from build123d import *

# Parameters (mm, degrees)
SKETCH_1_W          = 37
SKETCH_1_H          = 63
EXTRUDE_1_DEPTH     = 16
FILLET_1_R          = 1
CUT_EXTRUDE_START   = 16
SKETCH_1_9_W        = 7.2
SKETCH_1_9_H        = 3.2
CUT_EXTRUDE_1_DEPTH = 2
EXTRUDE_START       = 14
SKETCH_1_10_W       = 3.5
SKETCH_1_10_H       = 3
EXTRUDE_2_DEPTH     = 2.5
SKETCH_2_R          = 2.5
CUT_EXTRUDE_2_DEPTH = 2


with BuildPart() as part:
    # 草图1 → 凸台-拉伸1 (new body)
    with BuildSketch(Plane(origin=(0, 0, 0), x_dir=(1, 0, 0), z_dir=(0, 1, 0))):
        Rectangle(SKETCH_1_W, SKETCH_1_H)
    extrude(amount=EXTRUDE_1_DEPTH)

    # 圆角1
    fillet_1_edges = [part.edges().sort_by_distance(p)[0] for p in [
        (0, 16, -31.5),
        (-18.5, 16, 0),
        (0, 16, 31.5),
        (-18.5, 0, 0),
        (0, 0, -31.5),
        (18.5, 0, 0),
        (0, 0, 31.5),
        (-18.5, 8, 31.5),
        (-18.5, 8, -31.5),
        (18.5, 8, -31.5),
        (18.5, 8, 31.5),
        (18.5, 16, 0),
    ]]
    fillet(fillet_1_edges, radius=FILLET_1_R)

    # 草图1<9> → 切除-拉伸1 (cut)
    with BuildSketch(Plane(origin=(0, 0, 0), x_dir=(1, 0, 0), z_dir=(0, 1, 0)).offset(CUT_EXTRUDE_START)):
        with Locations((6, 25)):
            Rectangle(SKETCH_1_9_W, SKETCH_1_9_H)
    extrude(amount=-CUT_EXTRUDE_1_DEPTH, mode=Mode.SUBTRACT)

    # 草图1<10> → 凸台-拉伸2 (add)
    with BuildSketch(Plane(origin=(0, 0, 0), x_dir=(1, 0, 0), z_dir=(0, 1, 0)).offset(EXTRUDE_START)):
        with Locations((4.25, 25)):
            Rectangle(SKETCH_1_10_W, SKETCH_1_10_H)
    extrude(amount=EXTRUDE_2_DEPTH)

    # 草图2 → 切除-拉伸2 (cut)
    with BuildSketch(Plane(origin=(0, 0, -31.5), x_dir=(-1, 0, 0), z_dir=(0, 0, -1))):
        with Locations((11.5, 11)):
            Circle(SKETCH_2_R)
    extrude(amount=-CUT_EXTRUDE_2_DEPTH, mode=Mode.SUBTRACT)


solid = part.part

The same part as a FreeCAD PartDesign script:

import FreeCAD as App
import Part
import Sketcher
from FreeCAD import Vector
Q = App.Units.Quantity

doc = App.newDocument("Part")
body = doc.addObject("PartDesign::Body", "Body")

# Sketch on XZ plane
sketch1 = body.newObject("Sketcher::SketchObject", "Sketch")
sketch1.AttachmentSupport = (doc.getObject("XZ_Plane"), [""])
sketch1.MapMode = "FlatFace"
sketch1.addGeometry([
    Part.LineSegment(Vector(-18.5, -31.5, 0), Vector(-18.5, 31.5, 0)),
    Part.LineSegment(Vector(-18.5, 31.5, 0), Vector(18.5, 31.5, 0)),
    Part.LineSegment(Vector(18.5, 31.5, 0), Vector(18.5, -31.5, 0)),
    Part.LineSegment(Vector(18.5, -31.5, 0), Vector(-18.5, -31.5, 0)),
], False)
sketch1.addConstraint([
    Sketcher.Constraint("Coincident", 0, 2, 1, 1),
    Sketcher.Constraint("Coincident", 1, 2, 2, 1),
    Sketcher.Constraint("Coincident", 2, 2, 3, 1),
    Sketcher.Constraint("Coincident", 3, 2, 0, 1),
    Sketcher.Constraint("Vertical", 0),
    Sketcher.Constraint("Horizontal", 1),
    Sketcher.Constraint("Vertical", 2),
    Sketcher.Constraint("Horizontal", 3),
    Sketcher.Constraint("Symmetric", 0, 2, 2, 2, -1, 1),
    Sketcher.Constraint("DistanceX", 1, 1, 1, 2, Q("37 mm")),
    Sketcher.Constraint("DistanceY", 0, 1, 0, 2, Q("63 mm")),
])
pad1 = body.newObject("PartDesign::Pad", "Pad")
pad1.Profile = sketch1
pad1.Length = 16
pad1.Reversed = True
doc.recompute()

fillet = body.newObject("PartDesign::Fillet", "Fillet")
fillet.Base = (pad1, ["Edge1"])
fillet.UseAllEdges = True
fillet.Radius = 1

# Sketch on XZ plane
sketch2 = body.newObject("Sketcher::SketchObject", "Sketch001")
sketch2.AttachmentSupport = (doc.getObject("XZ_Plane"), [""])
sketch2.MapMode = "FlatFace"
sketch2.AttachmentOffset = App.Placement(Vector(0, 0, -16), App.Rotation())
sketch2.addGeometry([
    Part.LineSegment(Vector(2.4, -26.6, 0), Vector(2.4, -23.4, 0)),
    Part.LineSegment(Vector(2.4, -23.4, 0), Vector(9.6, -23.4, 0)),
    Part.LineSegment(Vector(9.6, -23.4, 0), Vector(9.6, -26.6, 0)),
    Part.LineSegment(Vector(9.6, -26.6, 0), Vector(2.4, -26.6, 0)),
], False)
sketch2.addConstraint([
    Sketcher.Constraint("Coincident", 0, 2, 1, 1),
    Sketcher.Constraint("Coincident", 1, 2, 2, 1),
    Sketcher.Constraint("Coincident", 2, 2, 3, 1),
    Sketcher.Constraint("Coincident", 3, 2, 0, 1),
    Sketcher.Constraint("Vertical", 0),
    Sketcher.Constraint("Horizontal", 1),
    Sketcher.Constraint("Vertical", 2),
    Sketcher.Constraint("Horizontal", 3),
    Sketcher.Constraint("DistanceX", 1, 1, 1, 2, Q("7.2 mm")),
    Sketcher.Constraint("DistanceY", 0, 1, 0, 2, Q("3.2 mm")),
    Sketcher.Constraint("DistanceX", -1, 1, 0, 2, Q("2.4 mm")),
    Sketcher.Constraint("DistanceY", 0, 2, -1, 1, Q("23.4 mm")),
])
pocket1 = body.newObject("PartDesign::Pocket", "Pocket")
pocket1.Profile = sketch2
pocket1.Length = 2
pocket1.Reversed = True

# Sketch on XZ plane
sketch3 = body.newObject("Sketcher::SketchObject", "Sketch002")
sketch3.AttachmentSupport = (doc.getObject("XZ_Plane"), [""])
sketch3.MapMode = "FlatFace"
sketch3.AttachmentOffset = App.Placement(Vector(0, 0, -14), App.Rotation())
sketch3.addGeometry([
    Part.LineSegment(Vector(2.5, -26.5, 0), Vector(2.5, -23.5, 0)),
    Part.LineSegment(Vector(2.5, -23.5, 0), Vector(6, -23.5, 0)),
    Part.LineSegment(Vector(6, -23.5, 0), Vector(6, -26.5, 0)),
    Part.LineSegment(Vector(6, -26.5, 0), Vector(2.5, -26.5, 0)),
], False)
sketch3.addConstraint([
    Sketcher.Constraint("Coincident", 0, 2, 1, 1),
    Sketcher.Constraint("Coincident", 1, 2, 2, 1),
    Sketcher.Constraint("Coincident", 2, 2, 3, 1),
    Sketcher.Constraint("Coincident", 3, 2, 0, 1),
    Sketcher.Constraint("Vertical", 0),
    Sketcher.Constraint("Horizontal", 1),
    Sketcher.Constraint("Vertical", 2),
    Sketcher.Constraint("Horizontal", 3),
    Sketcher.Constraint("DistanceY", 0, 1, 0, 2, Q("3 mm")),
    Sketcher.Constraint("DistanceX", 1, 1, 1, 2, Q("3.5 mm")),
    Sketcher.Constraint("DistanceX", -1, 1, 1, 2, Q("6 mm")),
    Sketcher.Constraint("DistanceY", 0, 2, -1, 1, Q("23.5 mm")),
])
pad2 = body.newObject("PartDesign::Pad", "Pad001")
pad2.Profile = sketch3
pad2.Length = 2.5
pad2.Reversed = True

# Sketch on XY plane
sketch4 = body.newObject("Sketcher::SketchObject", "Sketch003")
sketch4.AttachmentSupport = (doc.getObject("XY_Plane"), [""])
sketch4.MapMode = "FlatFace"
sketch4.AttachmentOffset = App.Placement(Vector(0, 0, -31.5), App.Rotation())
sketch4.addGeometry(Part.Circle(Vector(-11.5, 11, 0), Vector(0, 0, 1), 2.5), False)
sketch4.addConstraint([
    Sketcher.Constraint("Diameter", 0, Q("5 mm")),
    Sketcher.Constraint("DistanceY", -1, 1, 0, 3, Q("11 mm")),
    Sketcher.Constraint("DistanceX", 0, 3, -1, 1, Q("11.5 mm")),
])
pocket2 = body.newObject("PartDesign::Pocket", "Pocket001")
pocket2.Profile = sketch4
pocket2.Length = 2
pocket2.Reversed = True

doc.recompute()
